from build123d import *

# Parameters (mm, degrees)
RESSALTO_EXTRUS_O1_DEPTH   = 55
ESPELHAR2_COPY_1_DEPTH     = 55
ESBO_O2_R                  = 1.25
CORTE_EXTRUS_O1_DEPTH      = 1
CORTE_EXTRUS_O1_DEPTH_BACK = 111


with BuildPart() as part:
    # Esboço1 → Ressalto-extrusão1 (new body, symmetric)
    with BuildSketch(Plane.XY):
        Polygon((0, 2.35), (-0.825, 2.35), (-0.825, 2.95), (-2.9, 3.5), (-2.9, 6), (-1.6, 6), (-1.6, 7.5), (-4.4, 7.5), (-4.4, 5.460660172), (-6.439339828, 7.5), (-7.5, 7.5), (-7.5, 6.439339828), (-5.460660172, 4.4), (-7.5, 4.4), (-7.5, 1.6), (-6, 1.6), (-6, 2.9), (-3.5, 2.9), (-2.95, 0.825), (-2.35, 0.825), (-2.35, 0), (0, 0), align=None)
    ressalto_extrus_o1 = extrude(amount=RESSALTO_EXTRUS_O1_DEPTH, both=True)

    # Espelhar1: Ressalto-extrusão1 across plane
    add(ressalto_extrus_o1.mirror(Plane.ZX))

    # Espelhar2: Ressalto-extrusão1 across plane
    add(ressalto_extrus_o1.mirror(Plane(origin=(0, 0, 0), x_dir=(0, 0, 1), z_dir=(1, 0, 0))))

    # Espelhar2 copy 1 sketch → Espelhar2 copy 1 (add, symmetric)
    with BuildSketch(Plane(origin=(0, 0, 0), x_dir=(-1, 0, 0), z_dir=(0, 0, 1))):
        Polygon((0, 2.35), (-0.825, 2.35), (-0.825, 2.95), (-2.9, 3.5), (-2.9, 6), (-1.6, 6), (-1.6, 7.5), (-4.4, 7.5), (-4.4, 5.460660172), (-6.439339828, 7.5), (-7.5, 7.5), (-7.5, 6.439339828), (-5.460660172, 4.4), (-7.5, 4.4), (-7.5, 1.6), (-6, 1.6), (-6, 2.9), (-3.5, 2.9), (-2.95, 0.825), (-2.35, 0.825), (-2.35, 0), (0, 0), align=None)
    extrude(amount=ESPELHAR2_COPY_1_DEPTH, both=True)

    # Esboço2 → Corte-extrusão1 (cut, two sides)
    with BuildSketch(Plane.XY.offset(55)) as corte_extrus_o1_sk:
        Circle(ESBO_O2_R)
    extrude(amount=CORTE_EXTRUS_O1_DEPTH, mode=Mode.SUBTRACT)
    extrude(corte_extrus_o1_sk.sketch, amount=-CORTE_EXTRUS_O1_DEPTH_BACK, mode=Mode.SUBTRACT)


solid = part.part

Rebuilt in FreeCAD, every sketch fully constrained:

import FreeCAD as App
import Part
import Sketcher
Q = App.Units.Quantity

doc = App.newDocument("Part")
params = doc.addObject("Spreadsheet::Sheet", "Params")
for row, (alias, value) in enumerate([
    ("sketch1_width", "1.3 mm"),
    ("sketch1_width2", "2.8 mm"),
    ("sketch1_width3", "1.5 mm"),
    ("sketch1_width4", "2.5 mm"),
    ("sketch1_width5", "0.6 mm"),
    ("pad1_length", "110 mm"),
    ("sketch2_width", "1.3 mm"),
    ("sketch2_width2", "2.8 mm"),
    ("sketch2_width3", "1.5 mm"),
    ("sketch2_width4", "2.5 mm"),
    ("sketch2_width5", "0.6 mm"),
    ("pad2_length", "110 mm"),
    ("sketch3_diameter", "2.5 mm"),
], start=1):
    params.set(f"A{row}", alias)
    params.set(f"B{row}", "=" + value)
    params.setAlias(f"B{row}", alias)

body = doc.addObject("PartDesign::Body", "Body")

# Sketch on XY plane
sketch1 = doc.addObject("Sketcher::SketchObject", "Sketch")
body.addObject(sketch1)
sketch1.AttachmentSupport = (doc.XY_Plane, [""])
sketch1.MapMode = "FlatFace"
sketch1.addGeometry(Part.LineSegment(App.Vector(0, 2.4, 0), App.Vector(-0.8, 2.4, 0)), False)
sketch1.addGeometry(Part.LineSegment(App.Vector(-0.8, 2.4, 0), App.Vector(-0.8, 3, 0)), False)
sketch1.addGeometry(Part.LineSegment(App.Vector(-0.8, 3, 0), App.Vector(-2.9, 3.5, 0)), False)
sketch1.addGeometry(Part.LineSegment(App.Vector(-2.9, 3.5, 0), App.Vector(-2.9, 6, 0)), False)
sketch1.addGeometry(Part.LineSegment(App.Vector(-2.9, 6, 0), App.Vector(-1.6, 6, 0)), False)
sketch1.addGeometry(Part.LineSegment(App.Vector(-1.6, 6, 0), App.Vector(-1.6, 7.5, 0)), False)
sketch1.addGeometry(Part.LineSegment(App.Vector(-1.6, 7.5, 0), App.Vector(-4.4, 7.5, 0)), False)
sketch1.addGeometry(Part.LineSegment(App.Vector(-4.4, 7.5, 0), App.Vector(-4.4, 5.5, 0)), False)
sketch1.addGeometry(Part.LineSegment(App.Vector(-4.4, 5.5, 0), App.Vector(-6.4, 7.5, 0)), False)
sketch1.addGeometry(Part.LineSegment(App.Vector(-6.4, 7.5, 0), App.Vector(-7.5, 7.5, 0)), False)
sketch1.addGeometry(Part.LineSegment(App.Vector(-7.5, 7.5, 0), App.Vector(-7.5, 6.4, 0)), False)
sketch1.addGeometry(Part.LineSegment(App.Vector(-7.5, 6.4, 0), App.Vector(-5.5, 4.4, 0)), False)
sketch1.addGeometry(Part.LineSegment(App.Vector(-5.5, 4.4, 0), App.Vector(-7.5, 4.4, 0)), False)
sketch1.addGeometry(Part.LineSegment(App.Vector(-7.5, 4.4, 0), App.Vector(-7.5, 1.6, 0)), False)
sketch1.addGeometry(Part.LineSegment(App.Vector(-7.5, 1.6, 0), App.Vector(-6, 1.6, 0)), False)
sketch1.addGeometry(Part.LineSegment(App.Vector(-6, 1.6, 0), App.Vector(-6, 2.9, 0)), False)
sketch1.addGeometry(Part.LineSegment(App.Vector(-6, 2.9, 0), App.Vector(-3.5, 2.9, 0)), False)
sketch1.addGeometry(Part.LineSegment(App.Vector(-3.5, 2.9, 0), App.Vector(-3, 0.8, 0)), False)
sketch1.addGeometry(Part.LineSegment(App.Vector(-3, 0.8, 0), App.Vector(-2.4, 0.8, 0)), False)
sketch1.addGeometry(Part.LineSegment(App.Vector(-2.4, 0.8, 0), App.Vector(-2.4, 0, 0)), False)
sketch1.addGeometry(Part.LineSegment(App.Vector(-2.4, 0, 0), App.Vector(0, 0, 0)), False)
sketch1.addGeometry(Part.LineSegment(App.Vector(0, 0, 0), App.Vector(0, 2.4, 0)), False)
sketch1.addConstraint(Sketcher.Constraint("Coincident", 0, 2, 1, 1))
sketch1.addConstraint(Sketcher.Constraint("Coincident", 1, 2, 2, 1))
sketch1.addConstraint(Sketcher.Constraint("Coincident", 2, 2, 3, 1))
sketch1.addConstraint(Sketcher.Constraint("Coincident", 3, 2, 4, 1))
sketch1.addConstraint(Sketcher.Constraint("Coincident", 4, 2, 5, 1))
sketch1.addConstraint(Sketcher.Constraint("Coincident", 5, 2, 6, 1))
sketch1.addConstraint(Sketcher.Constraint("Coincident", 6, 2, 7, 1))
sketch1.addConstraint(Sketcher.Constraint("Coincident", 7, 2, 8, 1))
sketch1.addConstraint(Sketcher.Constraint("Coincident", 8, 2, 9, 1))
sketch1.addConstraint(Sketcher.Constraint("Coincident", 9, 2, 10, 1))
sketch1.addConstraint(Sketcher.Constraint("Coincident", 10, 2, 11, 1))
sketch1.addConstraint(Sketcher.Constraint("Coincident", 11, 2, 12, 1))
sketch1.addConstraint(Sketcher.Constraint("Coincident", 12, 2, 13, 1))
sketch1.addConstraint(Sketcher.Constraint("Coincident", 13, 2, 14, 1))
sketch1.addConstraint(Sketcher.Constraint("Coincident", 14, 2, 15, 1))
sketch1.addConstraint(Sketcher.Constraint("Coincident", 15, 2, 16, 1))
sketch1.addConstraint(Sketcher.Constraint("Coincident", 16, 2, 17, 1))
sketch1.addConstraint(Sketcher.Constraint("Coincident", 17, 2, 18, 1))
sketch1.addConstraint(Sketcher.Constraint("Coincident", 18, 2, 19, 1))
sketch1.addConstraint(Sketcher.Constraint("Coincident", 19, 2, 20, 1))
sketch1.addConstraint(Sketcher.Constraint("Coincident", 20, 2, 21, 1))
sketch1.addConstraint(Sketcher.Constraint("Coincident", 21, 2, 0, 1))
sketch1.addConstraint(Sketcher.Constraint("Horizontal", 0))
sketch1.addConstraint(Sketcher.Constraint("Vertical", 1))
sketch1.addConstraint(Sketcher.Constraint("Vertical", 3))
sketch1.addConstraint(Sketcher.Constraint("Horizontal", 4))
sketch1.addConstraint(Sketcher.Constraint("Vertical", 5))
sketch1.addConstraint(Sketcher.Constraint("Horizontal", 6))
sketch1.addConstraint(Sketcher.Constraint("Vertical", 7))
sketch1.addConstraint(Sketcher.Constraint("Horizontal", 9))
sketch1.addConstraint(Sketcher.Constraint("Vertical", 10))
sketch1.addConstraint(Sketcher.Constraint("Horizontal", 12))
sketch1.addConstraint(Sketcher.Constraint("Vertical", 13))
sketch1.addConstraint(Sketcher.Constraint("Horizontal", 14))
sketch1.addConstraint(Sketcher.Constraint("Vertical", 15))
sketch1.addConstraint(Sketcher.Constraint("Horizontal", 16))
sketch1.addConstraint(Sketcher.Constraint("Horizontal", 18))
sketch1.addConstraint(Sketcher.Constraint("Vertical", 19))
sketch1.addConstraint(Sketcher.Constraint("Horizontal", 20))
sketch1.addConstraint(Sketcher.Constraint("Vertical", 21))
sketch1.addConstraint(Sketcher.Constraint("Coincident", 20, 2, -1, 1))
sketch1.addConstraint(Sketcher.Constraint("Parallel", 8, 11))
sketch1.addConstraint(Sketcher.Constraint("Horizontal", 6, 2, 8, 2))
sketch1.addConstraint(Sketcher.Constraint("Vertical", 10, 2, 12, 2))
sketch1.addConstraint(Sketcher.Constraint("Equal", 18, 1))
sketch1.addConstraint(Sketcher.Constraint("Equal", 16, 3))
sketch1.addConstraint(Sketcher.Constraint("Equal", 14, 5))
sketch1.addConstraint(Sketcher.Constraint("Equal", 12, 7))
sketch1.addConstraint(Sketcher.Constraint("Equal", 9, 10))
sketch1.addConstraint(Sketcher.Constraint("Equal", 6, 13))
sketch1.addConstraint(Sketcher.Constraint("Equal", 4, 15))
sketch1.addConstraint(Sketcher.Constraint("Equal", 0, 19))
sketch1.addConstraint(Sketcher.Constraint("Equal", 20, 21))
sketch1.addConstraint(Sketcher.Constraint("Equal", 8, 11))
sketch1.addConstraint(Sketcher.Constraint("Equal", 2, 17))
sketch1.addConstraint(Sketcher.Constraint("DistanceX", 4, 1, 4, 2, Q("1.3 mm")))
sketch1.addConstraint(Sketcher.Constraint("DistanceX", 6, 2, 6, 1, Q("2.8 mm")))
sketch1.addConstraint(Sketcher.Constraint("DistanceX", 14, 1, 14, 2, Q("1.5 mm")))
sketch1.addConstraint(Sketcher.Constraint("DistanceX", 16, 1, 16, 2, Q("2.5 mm")))
sketch1.addConstraint(Sketcher.Constraint("DistanceX", 18, 1, 18, 2, Q("0.6 mm")))
sketch1.addConstraint(Sketcher.Constraint("DistanceY", -1, 1, 3, 2, Q("6 mm")))
sketch1.addConstraint(Sketcher.Constraint("DistanceX", 20, 1, 20, 2, Q("2.35 mm")))
sketch1.addConstraint(Sketcher.Constraint("DistanceX", 2, 2, -1, 1, Q("2.9 mm")))
sketch1.addConstraint(Sketcher.Constraint("DistanceX", 0, 2, 0, 1, Q("0.825 mm")))
sketch1.addConstraint(Sketcher.Constraint("DistanceX", 9, 2, 9, 1, Q("1.06066 mm")))
sketch1.setExpression("Constraints[55]", "Params.sketch1_width")
sketch1.setExpression("Constraints[56]", "Params.sketch1_width2")
sketch1.setExpression("Constraints[57]", "Params.sketch1_width3")
sketch1.setExpression("Constraints[58]", "Params.sketch1_width4")
sketch1.setExpression("Constraints[59]", "Params.sketch1_width5")
pad1 = doc.addObject("PartDesign::Pad", "Pad")
body.addObject(pad1)
pad1.Profile = sketch1
pad1.setExpression("Length", "Params.pad1_length")
pad1.Midplane = True
doc.recompute()

mirrored = doc.addObject("PartDesign::Mirrored", "Mirrored")
body.addObject(mirrored)
mirrored.Originals = [pad1]
mirrored.MirrorPlane = (doc.XZ_Plane, [""])
body.Tip = mirrored
doc.recompute()

mirrored2 = doc.addObject("PartDesign::Mirrored", "Mirrored001")
body.addObject(mirrored2)
mirrored2.Originals = [pad1]
mirrored2.MirrorPlane = (doc.YZ_Plane, [""])
body.Tip = mirrored2

# Sketch on XY plane
sketch2 = doc.addObject("Sketcher::SketchObject", "Sketch001")
body.addObject(sketch2)
sketch2.AttachmentSupport = (doc.XY_Plane, [""])
sketch2.MapMode = "FlatFace"
sketch2.addGeometry(Part.LineSegment(App.Vector(0, -2.4, 0), App.Vector(0.8, -2.4, 0)), False)
sketch2.addGeometry(Part.LineSegment(App.Vector(0.8, -2.4, 0), App.Vector(0.8, -3, 0)), False)
sketch2.addGeometry(Part.LineSegment(App.Vector(0.8, -3, 0), App.Vector(2.9, -3.5, 0)), False)
sketch2.addGeometry(Part.LineSegment(App.Vector(2.9, -3.5, 0), App.Vector(2.9, -6, 0)), False)
sketch2.addGeometry(Part.LineSegment(App.Vector(2.9, -6, 0), App.Vector(1.6, -6, 0)), False)
sketch2.addGeometry(Part.LineSegment(App.Vector(1.6, -6, 0), App.Vector(1.6, -7.5, 0)), False)
sketch2.addGeometry(Part.LineSegment(App.Vector(1.6, -7.5, 0), App.Vector(4.4, -7.5, 0)), False)
sketch2.addGeometry(Part.LineSegment(App.Vector(4.4, -7.5, 0), App.Vector(4.4, -5.5, 0)), False)
sketch2.addGeometry(Part.LineSegment(App.Vector(4.4, -5.5, 0), App.Vector(6.4, -7.5, 0)), False)
sketch2.addGeometry(Part.LineSegment(App.Vector(6.4, -7.5, 0), App.Vector(7.5, -7.5, 0)), False)
sketch2.addGeometry(Part.LineSegment(App.Vector(7.5, -7.5, 0), App.Vector(7.5, -6.4, 0)), False)
sketch2.addGeometry(Part.LineSegment(App.Vector(7.5, -6.4, 0), App.Vector(5.5, -4.4, 0)), False)
sketch2.addGeometry(Part.LineSegment(App.Vector(5.5, -4.4, 0), App.Vector(7.5, -4.4, 0)), False)
sketch2.addGeometry(Part.LineSegment(App.Vector(7.5, -4.4, 0), App.Vector(7.5, -1.6, 0)), False)
sketch2.addGeometry(Part.LineSegment(App.Vector(7.5, -1.6, 0), App.Vector(6, -1.6, 0)), False)
sketch2.addGeometry(Part.LineSegment(App.Vector(6, -1.6, 0), App.Vector(6, -2.9, 0)), False)
sketch2.addGeometry(Part.LineSegment(App.Vector(6, -2.9, 0), App.Vector(3.5, -2.9, 0)), False)
sketch2.addGeometry(Part.LineSegment(App.Vector(3.5, -2.9, 0), App.Vector(3, -0.8, 0)), False)
sketch2.addGeometry(Part.LineSegment(App.Vector(3, -0.8, 0), App.Vector(2.4, -0.8, 0)), False)
sketch2.addGeometry(Part.LineSegment(App.Vector(2.4, -0.8, 0), App.Vector(2.4, 0, 0)), False)
sketch2.addGeometry(Part.LineSegment(App.Vector(2.4, 0, 0), App.Vector(0, 0, 0)), False)
sketch2.addGeometry(Part.LineSegment(App.Vector(0, 0, 0), App.Vector(0, -2.4, 0)), False)
sketch2.addConstraint(Sketcher.Constraint("Coincident", 0, 2, 1, 1))
sketch2.addConstraint(Sketcher.Constraint("Coincident", 1, 2, 2, 1))
sketch2.addConstraint(Sketcher.Constraint("Coincident", 2, 2, 3, 1))
sketch2.addConstraint(Sketcher.Constraint("Coincident", 3, 2, 4, 1))
sketch2.addConstraint(Sketcher.Constraint("Coincident", 4, 2, 5, 1))
sketch2.addConstraint(Sketcher.Constraint("Coincident", 5, 2, 6, 1))
sketch2.addConstraint(Sketcher.Constraint("Coincident", 6, 2, 7, 1))
sketch2.addConstraint(Sketcher.Constraint("Coincident", 7, 2, 8, 1))
sketch2.addConstraint(Sketcher.Constraint("Coincident", 8, 2, 9, 1))
sketch2.addConstraint(Sketcher.Constraint("Coincident", 9, 2, 10, 1))
sketch2.addConstraint(Sketcher.Constraint("Coincident", 10, 2, 11, 1))
sketch2.addConstraint(Sketcher.Constraint("Coincident", 11, 2, 12, 1))
sketch2.addConstraint(Sketcher.Constraint("Coincident", 12, 2, 13, 1))
sketch2.addConstraint(Sketcher.Constraint("Coincident", 13, 2, 14, 1))
sketch2.addConstraint(Sketcher.Constraint("Coincident", 14, 2, 15, 1))
sketch2.addConstraint(Sketcher.Constraint("Coincident", 15, 2, 16, 1))
sketch2.addConstraint(Sketcher.Constraint("Coincident", 16, 2, 17, 1))
sketch2.addConstraint(Sketcher.Constraint("Coincident", 17, 2, 18, 1))
sketch2.addConstraint(Sketcher.Constraint("Coincident", 18, 2, 19, 1))
sketch2.addConstraint(Sketcher.Constraint("Coincident", 19, 2, 20, 1))
sketch2.addConstraint(Sketcher.Constraint("Coincident", 20, 2, 21, 1))
sketch2.addConstraint(Sketcher.Constraint("Coincident", 21, 2, 0, 1))
sketch2.addConstraint(Sketcher.Constraint("Horizontal", 0))
sketch2.addConstraint(Sketcher.Constraint("Vertical", 1))
sketch2.addConstraint(Sketcher.Constraint("Vertical", 3))
sketch2.addConstraint(Sketcher.Constraint("Horizontal", 4))
sketch2.addConstraint(Sketcher.Constraint("Vertical", 5))
sketch2.addConstraint(Sketcher.Constraint("Horizontal", 6))
sketch2.addConstraint(Sketcher.Constraint("Vertical", 7))
sketch2.addConstraint(Sketcher.Constraint("Horizontal", 9))
sketch2.addConstraint(Sketcher.Constraint("Vertical", 10))
sketch2.addConstraint(Sketcher.Constraint("Horizontal", 12))
sketch2.addConstraint(Sketcher.Constraint("Vertical", 13))
sketch2.addConstraint(Sketcher.Constraint("Horizontal", 14))
sketch2.addConstraint(Sketcher.Constraint("Vertical", 15))
sketch2.addConstraint(Sketcher.Constraint("Horizontal", 16))
sketch2.addConstraint(Sketcher.Constraint("Horizontal", 18))
sketch2.addConstraint(Sketcher.Constraint("Vertical", 19))
sketch2.addConstraint(Sketcher.Constraint("Horizontal", 20))
sketch2.addConstraint(Sketcher.Constraint("Vertical", 21))
sketch2.addConstraint(Sketcher.Constraint("Coincident", 20, 2, -1, 1))
sketch2.addConstraint(Sketcher.Constraint("Parallel", 8, 11))
sketch2.addConstraint(Sketcher.Constraint("Horizontal", 6, 2, 8, 2))
sketch2.addConstraint(Sketcher.Constraint("Vertical", 10, 2, 12, 2))
sketch2.addConstraint(Sketcher.Constraint("Equal", 18, 1))
sketch2.addConstraint(Sketcher.Constraint("Equal", 16, 3))
sketch2.addConstraint(Sketcher.Constraint("Equal", 14, 5))
sketch2.addConstraint(Sketcher.Constraint("Equal", 12, 7))
sketch2.addConstraint(Sketcher.Constraint("Equal", 9, 10))
sketch2.addConstraint(Sketcher.Constraint("Equal", 6, 13))
sketch2.addConstraint(Sketcher.Constraint("Equal", 4, 15))
sketch2.addConstraint(Sketcher.Constraint("Equal", 0, 19))
sketch2.addConstraint(Sketcher.Constraint("Equal", 20, 21))
sketch2.addConstraint(Sketcher.Constraint("Equal", 8, 11))
sketch2.addConstraint(Sketcher.Constraint("Equal", 2, 17))
sketch2.addConstraint(Sketcher.Constraint("DistanceX", 4, 2, 4, 1, Q("1.3 mm")))
sketch2.addConstraint(Sketcher.Constraint("DistanceX", 6, 1, 6, 2, Q("2.8 mm")))
sketch2.addConstraint(Sketcher.Constraint("DistanceX", 14, 2, 14, 1, Q("1.5 mm")))
sketch2.addConstraint(Sketcher.Constraint("DistanceX", 16, 2, 16, 1, Q("2.5 mm")))
sketch2.addConstraint(Sketcher.Constraint("DistanceX", 18, 2, 18, 1, Q("0.6 mm")))
sketch2.addConstraint(Sketcher.Constraint("DistanceY", 3, 2, -1, 1, Q("6 mm")))
sketch2.addConstraint(Sketcher.Constraint("DistanceX", 20, 2, 20, 1, Q("2.35 mm")))
sketch2.addConstraint(Sketcher.Constraint("DistanceX", -1, 1, 2, 2, Q("2.9 mm")))
sketch2.addConstraint(Sketcher.Constraint("DistanceX", 0, 1, 0, 2, Q("0.825 mm")))
sketch2.addConstraint(Sketcher.Constraint("DistanceX", 9, 1, 9, 2, Q("1.06066 mm")))
sketch2.setExpression("Constraints[55]", "Params.sketch2_width")
sketch2.setExpression("Constraints[56]", "Params.sketch2_width2")
sketch2.setExpression("Constraints[57]", "Params.sketch2_width3")
sketch2.setExpression("Constraints[58]", "Params.sketch2_width4")
sketch2.setExpression("Constraints[59]", "Params.sketch2_width5")
pad2 = doc.addObject("PartDesign::Pad", "Pad001")
body.addObject(pad2)
pad2.Profile = sketch2
pad2.setExpression("Length", "Params.pad2_length")
pad2.Midplane = True

# Sketch on XY plane
sketch3 = doc.addObject("Sketcher::SketchObject", "Sketch002")
body.addObject(sketch3)
sketch3.AttachmentSupport = (doc.XY_Plane, [""])
sketch3.MapMode = "FlatFace"
sketch3.AttachmentOffset = App.Placement(App.Vector(0, 0, 55), App.Rotation())
sketch3.addGeometry(Part.Circle(App.Vector(0, 0, 0), App.Vector(0, 0, 1), 1.2), False)
sketch3.addConstraint(Sketcher.Constraint("Coincident", 0, 3, -1, 1))
sketch3.addConstraint(Sketcher.Constraint("Diameter", 0, Q("2.5 mm")))
sketch3.setExpression("Constraints[1]", "Params.sketch3_diameter")
pocket1 = doc.addObject("PartDesign::Pocket", "Pocket")
body.addObject(pocket1)
pocket1.Profile = sketch3
pocket1.Type = "ThroughAll"
pocket1.Midplane = True

doc.recompute()
